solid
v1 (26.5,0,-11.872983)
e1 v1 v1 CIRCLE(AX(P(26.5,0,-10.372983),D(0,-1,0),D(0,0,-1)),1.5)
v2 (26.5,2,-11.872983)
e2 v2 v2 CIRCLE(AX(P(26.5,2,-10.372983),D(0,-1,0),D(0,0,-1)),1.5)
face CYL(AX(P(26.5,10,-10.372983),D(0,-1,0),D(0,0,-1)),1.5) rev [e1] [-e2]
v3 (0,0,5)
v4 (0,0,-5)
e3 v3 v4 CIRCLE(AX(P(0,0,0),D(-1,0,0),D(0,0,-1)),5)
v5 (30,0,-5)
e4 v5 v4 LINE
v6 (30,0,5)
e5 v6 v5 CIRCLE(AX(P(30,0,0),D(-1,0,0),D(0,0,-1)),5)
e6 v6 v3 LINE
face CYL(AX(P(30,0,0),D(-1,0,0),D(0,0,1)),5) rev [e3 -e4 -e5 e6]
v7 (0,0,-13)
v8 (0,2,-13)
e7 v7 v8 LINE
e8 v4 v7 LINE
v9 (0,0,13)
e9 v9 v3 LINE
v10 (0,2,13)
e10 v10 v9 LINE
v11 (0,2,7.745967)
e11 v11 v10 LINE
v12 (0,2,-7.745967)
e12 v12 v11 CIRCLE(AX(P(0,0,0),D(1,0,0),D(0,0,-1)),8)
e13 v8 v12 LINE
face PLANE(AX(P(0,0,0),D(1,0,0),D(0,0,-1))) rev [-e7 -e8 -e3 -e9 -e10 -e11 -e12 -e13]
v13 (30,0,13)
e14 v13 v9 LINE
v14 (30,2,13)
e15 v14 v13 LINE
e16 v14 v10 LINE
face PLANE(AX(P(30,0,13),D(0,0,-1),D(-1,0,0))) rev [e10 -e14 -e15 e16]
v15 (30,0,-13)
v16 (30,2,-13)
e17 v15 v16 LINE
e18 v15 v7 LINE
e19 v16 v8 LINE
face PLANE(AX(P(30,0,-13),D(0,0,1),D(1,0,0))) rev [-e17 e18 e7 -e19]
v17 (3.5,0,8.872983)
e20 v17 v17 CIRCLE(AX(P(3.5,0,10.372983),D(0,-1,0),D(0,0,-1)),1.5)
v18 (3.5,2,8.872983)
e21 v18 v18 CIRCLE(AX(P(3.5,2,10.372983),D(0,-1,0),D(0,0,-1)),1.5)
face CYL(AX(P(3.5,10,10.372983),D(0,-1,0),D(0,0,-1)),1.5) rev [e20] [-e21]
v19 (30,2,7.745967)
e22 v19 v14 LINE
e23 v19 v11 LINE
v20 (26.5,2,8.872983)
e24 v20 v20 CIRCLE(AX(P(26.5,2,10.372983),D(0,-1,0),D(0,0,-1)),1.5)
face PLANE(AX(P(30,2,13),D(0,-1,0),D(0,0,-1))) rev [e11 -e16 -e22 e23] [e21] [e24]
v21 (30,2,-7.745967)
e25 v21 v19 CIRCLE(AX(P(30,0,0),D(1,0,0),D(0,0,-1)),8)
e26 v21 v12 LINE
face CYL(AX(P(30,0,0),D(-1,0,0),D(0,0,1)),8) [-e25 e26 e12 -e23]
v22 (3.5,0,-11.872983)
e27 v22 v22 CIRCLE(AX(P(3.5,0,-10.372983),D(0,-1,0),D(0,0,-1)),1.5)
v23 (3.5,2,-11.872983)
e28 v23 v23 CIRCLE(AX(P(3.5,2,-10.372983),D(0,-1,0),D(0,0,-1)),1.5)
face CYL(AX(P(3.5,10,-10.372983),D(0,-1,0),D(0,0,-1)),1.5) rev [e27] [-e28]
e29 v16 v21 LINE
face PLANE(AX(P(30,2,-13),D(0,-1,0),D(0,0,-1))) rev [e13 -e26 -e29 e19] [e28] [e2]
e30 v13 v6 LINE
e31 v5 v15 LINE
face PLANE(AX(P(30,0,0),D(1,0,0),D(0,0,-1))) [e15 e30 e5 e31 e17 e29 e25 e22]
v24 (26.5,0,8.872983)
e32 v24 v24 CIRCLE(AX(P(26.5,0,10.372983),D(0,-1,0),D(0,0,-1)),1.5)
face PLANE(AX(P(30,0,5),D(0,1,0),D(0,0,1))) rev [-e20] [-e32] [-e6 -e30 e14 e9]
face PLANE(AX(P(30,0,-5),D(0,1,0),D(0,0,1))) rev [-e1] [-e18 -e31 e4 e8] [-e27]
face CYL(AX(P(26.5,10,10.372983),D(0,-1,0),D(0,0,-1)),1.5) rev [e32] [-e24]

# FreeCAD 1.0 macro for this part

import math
import FreeCAD as App
import Part
import Sketcher

V = App.Vector
Q = App.Units.Quantity

doc = App.newDocument("Part")
body = doc.addObject("PartDesign::Body", "Body")

sketch1 = body.newObject("Sketcher::SketchObject", "Sketch")
sketch1.AttachmentSupport = (doc.getObject("YZ_Plane"), [""])
sketch1.MapMode = "FlatFace"
sketch1.addGeometry(Part.LineSegment(V(0, 13, 0), V(0, 5, 0)), False)
sketch1.addGeometry(Part.ArcOfCircle(Part.Circle(V(0, 0, 0), V(0, 0, 1), 5), math.radians(-90), math.radians(90)), False)
sketch1.addGeometry(Part.LineSegment(V(0, -5, 0), V(0, -13, 0)), False)
sketch1.addGeometry(Part.LineSegment(V(0, -13, 0), V(2, -13, 0)), False)
sketch1.addGeometry(Part.LineSegment(V(2, -13, 0), V(2, -7.745967, 0)), False)
sketch1.addGeometry(Part.ArcOfCircle(Part.Circle(V(0, 0, 0), V(0, 0, 1), 8), math.radians(-75.522488), math.radians(75.522488)), False)
sketch1.addGeometry(Part.LineSegment(V(2, 7.745967, 0), V(2, 13, 0)), False)
sketch1.addGeometry(Part.LineSegment(V(2, 13, 0), V(0, 13, 0)), False)
sketch1.addConstraint(Sketcher.Constraint("Coincident", 0, 2, 1, 2))
sketch1.addConstraint(Sketcher.Constraint("Coincident", 1, 1, 2, 1))
sketch1.addConstraint(Sketcher.Constraint("Coincident", 2, 2, 3, 1))
sketch1.addConstraint(Sketcher.Constraint("Coincident", 3, 2, 4, 1))
sketch1.addConstraint(Sketcher.Constraint("Coincident", 4, 2, 5, 1))
sketch1.addConstraint(Sketcher.Constraint("Coincident", 5, 2, 6, 1))
sketch1.addConstraint(Sketcher.Constraint("Coincident", 6, 2, 7, 1))
sketch1.addConstraint(Sketcher.Constraint("Coincident", 7, 2, 0, 1))
sketch1.addConstraint(Sketcher.Constraint("Vertical", 0))
sketch1.addConstraint(Sketcher.Constraint("Vertical", 2))
sketch1.addConstraint(Sketcher.Constraint("Horizontal", 3))
sketch1.addConstraint(Sketcher.Constraint("Vertical", 4))
sketch1.addConstraint(Sketcher.Constraint("Vertical", 6))
sketch1.addConstraint(Sketcher.Constraint("Horizontal", 7))
sketch1.addConstraint(Sketcher.Constraint("Coincident", 1, 3, -1, 1))
sketch1.addConstraint(Sketcher.Constraint("Coincident", 5, 3, -1, 1))
sketch1.addConstraint(Sketcher.Constraint("Symmetric", 2, 2, 7, 2, -1, 1))
sketch1.addConstraint(Sketcher.Constraint("PointOnObject", 0, 2, -2))
sketch1.addConstraint(Sketcher.Constraint("Vertical", 4, 2, 5, 2))
sketch1.addConstraint(Sketcher.Constraint("Radius", 1, Q("5 mm")))
sketch1.addConstraint(Sketcher.Constraint("Radius", 5, Q("8 mm")))
sketch1.addConstraint(Sketcher.Constraint("DistanceX", 3, 1, 3, 2, Q("2 mm")))
sketch1.addConstraint(Sketcher.Constraint("DistanceY", 0, 2, 0, 1, Q("8 mm")))
pad1 = body.newObject("PartDesign::Pad", "Pad")
pad1.Profile = sketch1
pad1.Length = 30

sketch2 = body.newObject("Sketcher::SketchObject", "Sketch001")
sketch2.AttachmentSupport = (doc.getObject("XZ_Plane"), [""])
sketch2.MapMode = "FlatFace"
sketch2.addGeometry(Part.Circle(V(26.5, -10.372983, 0), V(0, 0, 1), 1.5), False)
sketch2.addGeometry(Part.Circle(V(3.5, -10.372983, 0), V(0, 0, 1), 1.5), False)
sketch2.addGeometry(Part.Circle(V(3.5, 10.372983, 0), V(0, 0, 1), 1.5), False)
sketch2.addGeometry(Part.Circle(V(26.5, 10.372983, 0), V(0, 0, 1), 1.5), False)
sketch2.addConstraint(Sketcher.Constraint("Equal", 0, 1))
sketch2.addConstraint(Sketcher.Constraint("Equal", 1, 2))
sketch2.addConstraint(Sketcher.Constraint("Equal", 2, 3))
sketch2.addConstraint(Sketcher.Constraint("Symmetric", 1, 3, 2, 3, -1))
sketch2.addConstraint(Sketcher.Constraint("Symmetric", 0, 3, 3, 3, -1))
sketch2.addConstraint(Sketcher.Constraint("Horizontal", 0, 3, 1, 3))
sketch2.addConstraint(Sketcher.Constraint("Diameter", 0, Q("3 mm")))
sketch2.addConstraint(Sketcher.Constraint("DistanceX", 1, 3, 0, 3, Q("23 mm")))
sketch2.addConstraint(Sketcher.Constraint("DistanceX", -1, 1, 0, 3, Q("26.5 mm")))
sketch2.addConstraint(Sketcher.Constraint("DistanceY", 0, 3, -1, 1, Q("10.372983 mm")))
pocket1 = body.newObject("PartDesign::Pocket", "Pocket")
pocket1.Profile = sketch2
pocket1.Length = 10

doc.recompute()
